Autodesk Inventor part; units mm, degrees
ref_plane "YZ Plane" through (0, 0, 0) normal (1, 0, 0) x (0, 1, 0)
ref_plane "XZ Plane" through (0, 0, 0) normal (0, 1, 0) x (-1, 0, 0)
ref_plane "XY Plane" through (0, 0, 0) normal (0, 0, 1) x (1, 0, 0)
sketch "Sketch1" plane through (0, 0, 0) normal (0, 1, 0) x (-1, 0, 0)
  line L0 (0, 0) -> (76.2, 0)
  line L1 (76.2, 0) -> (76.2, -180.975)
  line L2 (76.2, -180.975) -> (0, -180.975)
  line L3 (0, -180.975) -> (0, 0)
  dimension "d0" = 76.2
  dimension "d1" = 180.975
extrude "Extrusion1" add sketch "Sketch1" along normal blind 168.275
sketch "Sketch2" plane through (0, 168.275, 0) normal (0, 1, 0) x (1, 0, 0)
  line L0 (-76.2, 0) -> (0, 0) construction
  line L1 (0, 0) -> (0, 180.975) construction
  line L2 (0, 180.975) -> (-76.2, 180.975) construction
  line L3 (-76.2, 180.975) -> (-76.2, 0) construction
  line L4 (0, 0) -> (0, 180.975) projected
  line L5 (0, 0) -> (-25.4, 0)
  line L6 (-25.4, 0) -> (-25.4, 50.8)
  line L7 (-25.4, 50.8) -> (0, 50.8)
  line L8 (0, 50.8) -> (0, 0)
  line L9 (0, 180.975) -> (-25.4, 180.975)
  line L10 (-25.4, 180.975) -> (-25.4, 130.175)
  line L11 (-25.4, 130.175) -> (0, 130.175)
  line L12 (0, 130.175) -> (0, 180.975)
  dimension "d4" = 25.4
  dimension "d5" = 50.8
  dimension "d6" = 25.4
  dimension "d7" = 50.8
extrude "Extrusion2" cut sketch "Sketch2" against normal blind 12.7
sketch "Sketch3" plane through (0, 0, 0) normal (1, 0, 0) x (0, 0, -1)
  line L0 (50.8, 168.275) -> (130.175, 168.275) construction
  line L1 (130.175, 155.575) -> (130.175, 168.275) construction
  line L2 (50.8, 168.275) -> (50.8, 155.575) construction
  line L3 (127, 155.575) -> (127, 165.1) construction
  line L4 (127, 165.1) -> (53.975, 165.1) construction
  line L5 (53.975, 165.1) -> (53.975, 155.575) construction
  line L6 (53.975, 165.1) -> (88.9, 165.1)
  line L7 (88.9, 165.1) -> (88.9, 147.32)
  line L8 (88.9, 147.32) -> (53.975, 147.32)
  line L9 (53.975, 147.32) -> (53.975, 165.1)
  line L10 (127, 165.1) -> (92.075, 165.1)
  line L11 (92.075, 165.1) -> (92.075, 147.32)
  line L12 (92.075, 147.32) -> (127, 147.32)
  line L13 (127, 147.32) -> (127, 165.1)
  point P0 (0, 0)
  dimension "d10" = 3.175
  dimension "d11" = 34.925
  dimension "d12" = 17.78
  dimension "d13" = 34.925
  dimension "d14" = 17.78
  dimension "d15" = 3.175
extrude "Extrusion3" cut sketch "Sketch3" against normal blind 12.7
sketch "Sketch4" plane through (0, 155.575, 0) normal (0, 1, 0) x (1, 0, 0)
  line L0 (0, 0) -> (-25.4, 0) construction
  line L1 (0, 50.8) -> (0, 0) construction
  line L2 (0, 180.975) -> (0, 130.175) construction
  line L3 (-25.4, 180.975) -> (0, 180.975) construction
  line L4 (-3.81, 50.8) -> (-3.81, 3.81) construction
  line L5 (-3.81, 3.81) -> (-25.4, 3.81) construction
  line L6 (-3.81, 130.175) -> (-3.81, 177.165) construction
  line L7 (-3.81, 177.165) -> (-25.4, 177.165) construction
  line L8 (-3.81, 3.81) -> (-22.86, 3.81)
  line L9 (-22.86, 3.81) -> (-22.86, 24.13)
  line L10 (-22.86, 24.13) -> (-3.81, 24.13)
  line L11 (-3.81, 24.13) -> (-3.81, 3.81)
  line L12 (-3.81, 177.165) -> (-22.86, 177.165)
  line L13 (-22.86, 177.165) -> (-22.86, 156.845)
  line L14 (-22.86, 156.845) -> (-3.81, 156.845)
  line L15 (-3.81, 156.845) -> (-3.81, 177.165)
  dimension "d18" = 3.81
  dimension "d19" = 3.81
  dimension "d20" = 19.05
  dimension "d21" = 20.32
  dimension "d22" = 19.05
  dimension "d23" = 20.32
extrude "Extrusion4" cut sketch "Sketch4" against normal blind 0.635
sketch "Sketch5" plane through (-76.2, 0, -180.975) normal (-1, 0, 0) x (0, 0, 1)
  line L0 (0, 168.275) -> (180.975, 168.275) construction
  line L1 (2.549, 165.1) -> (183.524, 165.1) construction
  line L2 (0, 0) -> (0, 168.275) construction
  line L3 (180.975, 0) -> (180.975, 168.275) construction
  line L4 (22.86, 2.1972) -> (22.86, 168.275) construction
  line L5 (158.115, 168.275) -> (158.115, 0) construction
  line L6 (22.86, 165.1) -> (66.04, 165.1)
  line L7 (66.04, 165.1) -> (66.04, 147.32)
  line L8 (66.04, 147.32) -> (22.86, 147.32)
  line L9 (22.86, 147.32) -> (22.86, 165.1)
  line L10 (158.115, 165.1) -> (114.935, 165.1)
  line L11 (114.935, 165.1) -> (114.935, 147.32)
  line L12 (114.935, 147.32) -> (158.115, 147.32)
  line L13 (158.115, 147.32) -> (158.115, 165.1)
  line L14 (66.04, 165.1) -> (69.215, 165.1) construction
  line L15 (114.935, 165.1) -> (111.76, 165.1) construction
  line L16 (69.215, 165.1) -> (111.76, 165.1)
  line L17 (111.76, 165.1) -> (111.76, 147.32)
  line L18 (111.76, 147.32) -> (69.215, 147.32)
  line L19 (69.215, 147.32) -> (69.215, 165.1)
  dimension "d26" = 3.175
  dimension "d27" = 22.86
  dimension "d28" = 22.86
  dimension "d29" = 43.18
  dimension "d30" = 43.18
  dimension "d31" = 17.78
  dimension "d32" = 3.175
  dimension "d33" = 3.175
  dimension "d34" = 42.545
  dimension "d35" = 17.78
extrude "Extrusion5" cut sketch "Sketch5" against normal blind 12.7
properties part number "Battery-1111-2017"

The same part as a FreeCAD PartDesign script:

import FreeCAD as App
import Part
import Sketcher

V = App.Vector
Q = App.Units.Quantity

doc = App.newDocument("Part")
body = doc.addObject("PartDesign::Body", "Body")

# Sketch on XZ plane
sketch1 = body.newObject("Sketcher::SketchObject", "Sketch")
sketch1.AttachmentSupport = (doc.getObject("XZ_Plane"), [""])
sketch1.MapMode = "FlatFace"
sketch1.addGeometry(Part.LineSegment(V(-76, 0, 0), V(0, 0, 0)), False)
sketch1.addGeometry(Part.LineSegment(V(0, 0, 0), V(0, -181, 0)), False)
sketch1.addGeometry(Part.LineSegment(V(0, -181, 0), V(-76, -181, 0)), False)
sketch1.addGeometry(Part.LineSegment(V(-76, -181, 0), V(-76, 0, 0)), False)
sketch1.addConstraint(Sketcher.Constraint("Coincident", 0, 2, 1, 1))
sketch1.addConstraint(Sketcher.Constraint("Coincident", 1, 2, 2, 1))
sketch1.addConstraint(Sketcher.Constraint("Coincident", 2, 2, 3, 1))
sketch1.addConstraint(Sketcher.Constraint("Coincident", 3, 2, 0, 1))
sketch1.addConstraint(Sketcher.Constraint("Horizontal", 0))
sketch1.addConstraint(Sketcher.Constraint("Vertical", 1))
sketch1.addConstraint(Sketcher.Constraint("Horizontal", 2))
sketch1.addConstraint(Sketcher.Constraint("Vertical", 3))
sketch1.addConstraint(Sketcher.Constraint("Coincident", 0, 2, -1, 1))
sketch1.addConstraint(Sketcher.Constraint("DistanceX", 0, 1, 0, 2, Q("3 in")))
sketch1.addConstraint(Sketcher.Constraint("DistanceY", 1, 2, 1, 1, Q("7.125 in")))
pad1 = body.newObject("PartDesign::Pad", "Pad")
pad1.Profile = sketch1
pad1.Length = Q("6.625 in")
pad1.Reversed = True

# Sketch on XZ plane
sketch2 = body.newObject("Sketcher::SketchObject", "Sketch001")
sketch2.AttachmentSupport = (doc.getObject("XZ_Plane"), [""])
sketch2.MapMode = "FlatFace"
sketch2.AttachmentOffset = App.Placement(V(0, 0, -6.625 * 25.4), App.Rotation())
sketch2.addGeometry(Part.LineSegment(V(-25, 0, 0), V(0, 0, 0)), False)
sketch2.addGeometry(Part.LineSegment(V(0, 0, 0), V(0, -51, 0)), False)
sketch2.addGeometry(Part.LineSegment(V(0, -51, 0), V(-25, -51, 0)), False)
sketch2.addGeometry(Part.LineSegment(V(-25, -51, 0), V(-25, 0, 0)), False)
sketch2.addGeometry(Part.LineSegment(V(-25, -130, 0), V(0, -130, 0)), False)
sketch2.addGeometry(Part.LineSegment(V(0, -130, 0), V(0, -181, 0)), False)
sketch2.addGeometry(Part.LineSegment(V(0, -181, 0), V(-25, -181, 0)), False)
sketch2.addGeometry(Part.LineSegment(V(-25, -181, 0), V(-25, -130, 0)), False)
sketch2.addConstraint(Sketcher.Constraint("Coincident", 0, 2, 1, 1))
sketch2.addConstraint(Sketcher.Constraint("Coincident", 1, 2, 2, 1))
sketch2.addConstraint(Sketcher.Constraint("Coincident", 2, 2, 3, 1))
sketch2.addConstraint(Sketcher.Constraint("Coincident", 3, 2, 0, 1))
sketch2.addConstraint(Sketcher.Constraint("Coincident", 4, 2, 5, 1))
sketch2.addConstraint(Sketcher.Constraint("Coincident", 5, 2, 6, 1))
sketch2.addConstraint(Sketcher.Constraint("Coincident", 6, 2, 7, 1))
sketch2.addConstraint(Sketcher.Constraint("Coincident", 7, 2, 4, 1))
sketch2.addConstraint(Sketcher.Constraint("Horizontal", 0))
sketch2.addConstraint(Sketcher.Constraint("Vertical", 1))
sketch2.addConstraint(Sketcher.Constraint("Horizontal", 2))
sketch2.addConstraint(Sketcher.Constraint("Vertical", 3))
sketch2.addConstraint(Sketcher.Constraint("Horizontal", 4))
sketch2.addConstraint(Sketcher.Constraint("Vertical", 5))
sketch2.addConstraint(Sketcher.Constraint("Horizontal", 6))
sketch2.addConstraint(Sketcher.Constraint("Vertical", 7))
sketch2.addConstraint(Sketcher.Constraint("Coincident", 0, 2, -1, 1))
sketch2.addConstraint(Sketcher.Constraint("PointOnObject", 4, 2, -2))
sketch2.addConstraint(Sketcher.Constraint("Vertical", 3, 2, 6, 2))
sketch2.addConstraint(Sketcher.Constraint("Equal", 3, 5))
sketch2.addConstraint(Sketcher.Constraint("DistanceX", 0, 1, 0, 2, Q("1 in")))
sketch2.addConstraint(Sketcher.Constraint("DistanceY", 1, 2, 1, 1, Q("2 in")))
sketch2.addConstraint(Sketcher.Constraint("DistanceY", 4, 2, -1, 1, Q("5.125 in")))
pocket1 = body.newObject("PartDesign::Pocket", "Pocket")
pocket1.Profile = sketch2
pocket1.Length = Q("0.5 in")
pocket1.Reversed = True

# Sketch on YZ plane
sketch3 = body.newObject("Sketcher::SketchObject", "Sketch002")
sketch3.AttachmentSupport = (doc.getObject("YZ_Plane"), [""])
sketch3.MapMode = "FlatFace"
sketch3.addGeometry(Part.LineSegment(V(165, -89, 0), V(165, -54, 0)), False)
sketch3.addGeometry(Part.LineSegment(V(165, -54, 0), V(147, -54, 0)), False)
sketch3.addGeometry(Part.LineSegment(V(147, -54, 0), V(147, -89, 0)), False)
sketch3.addGeometry(Part.LineSegment(V(147, -89, 0), V(165, -89, 0)), False)
sketch3.addGeometry(Part.LineSegment(V(147, -127, 0), V(165, -127, 0)), False)
sketch3.addGeometry(Part.LineSegment(V(165, -127, 0), V(165, -92, 0)), False)
sketch3.addGeometry(Part.LineSegment(V(165, -92, 0), V(147, -92, 0)), False)
sketch3.addGeometry(Part.LineSegment(V(147, -92, 0), V(147, -127, 0)), False)
sketch3.addConstraint(Sketcher.Constraint("Coincident", 0, 2, 1, 1))
sketch3.addConstraint(Sketcher.Constraint("Coincident", 1, 2, 2, 1))
sketch3.addConstraint(Sketcher.Constraint("Coincident", 2, 2, 3, 1))
sketch3.addConstraint(Sketcher.Constraint("Coincident", 3, 2, 0, 1))
sketch3.addConstraint(Sketcher.Constraint("Coincident", 4, 2, 5, 1))
sketch3.addConstraint(Sketcher.Constraint("Coincident", 5, 2, 6, 1))
sketch3.addConstraint(Sketcher.Constraint("Coincident", 6, 2, 7, 1))
sketch3.addConstraint(Sketcher.Constraint("Coincident", 7, 2, 4, 1))
sketch3.addConstraint(Sketcher.Constraint("Vertical", 0))
sketch3.addConstraint(Sketcher.Constraint("Horizontal", 1))
sketch3.addConstraint(Sketcher.Constraint("Vertical", 2))
sketch3.addConstraint(Sketcher.Constraint("Horizontal", 3))
sketch3.addConstraint(Sketcher.Constraint("Horizontal", 4))
sketch3.addConstraint(Sketcher.Constraint("Vertical", 5))
sketch3.addConstraint(Sketcher.Constraint("Horizontal", 6))
sketch3.addConstraint(Sketcher.Constraint("Vertical", 7))
sketch3.addConstraint(Sketcher.Constraint("Vertical", 3, 2, 4, 2))
sketch3.addConstraint(Sketcher.Constraint("Vertical", 2, 2, 6, 2))
sketch3.addConstraint(Sketcher.Constraint("Equal", 2, 5))
sketch3.addConstraint(Sketcher.Constraint("DistanceX", 1, 2, 1, 1, Q("0.7 in")))
sketch3.addConstraint(Sketcher.Constraint("DistanceY", 0, 1, 0, 2, Q("1.375 in")))
sketch3.addConstraint(Sketcher.Constraint("DistanceY", 4, 2, -1, 1, Q("5 in")))
sketch3.addConstraint(Sketcher.Constraint("DistanceY", 5, 2, 3, 2, Q("0.125 in")))
sketch3.addConstraint(Sketcher.Constraint("DistanceX", -1, 1, 0, 2, Q("6.5 in")))
pocket2 = body.newObject("PartDesign::Pocket", "Pocket001")
pocket2.Profile = sketch3
pocket2.Length = Q("0.5 in")

# Sketch on XZ plane
sketch4 = body.newObject("Sketcher::SketchObject", "Sketch003")
sketch4.AttachmentSupport = (doc.getObject("XZ_Plane"), [""])
sketch4.MapMode = "FlatFace"
sketch4.AttachmentOffset = App.Placement(V(0, 0, -6.125 * 25.4), App.Rotation())
sketch4.addGeometry(Part.LineSegment(V(-23, -4, 0), V(-4, -4, 0)), False)
sketch4.addGeometry(Part.LineSegment(V(-4, -4, 0), V(-4, -24, 0)), False)
sketch4.addGeometry(Part.LineSegment(V(-4, -24, 0), V(-23, -24, 0)), False)
sketch4.addGeometry(Part.LineSegment(V(-23, -24, 0), V(-23, -4, 0)), False)
sketch4.addGeometry(Part.LineSegment(V(-4, -157, 0), V(-4, -177, 0)), False)
sketch4.addGeometry(Part.LineSegment(V(-4, -177, 0), V(-23, -177, 0)), False)
sketch4.addGeometry(Part.LineSegment(V(-23, -177, 0), V(-23, -157, 0)), False)
sketch4.addGeometry(Part.LineSegment(V(-23, -157, 0), V(-4, -157, 0)), False)
sketch4.addConstraint(Sketcher.Constraint("Coincident", 0, 2, 1, 1))
sketch4.addConstraint(Sketcher.Constraint("Coincident", 1, 2, 2, 1))
sketch4.addConstraint(Sketcher.Constraint("Coincident", 2, 2, 3, 1))
sketch4.addConstraint(Sketcher.Constraint("Coincident", 3, 2, 0, 1))
sketch4.addConstraint(Sketcher.Constraint("Coincident", 4, 2, 5, 1))
sketch4.addConstraint(Sketcher.Constraint("Coincident", 5, 2, 6, 1))
sketch4.addConstraint(Sketcher.Constraint("Coincident", 6, 2, 7, 1))
sketch4.addConstraint(Sketcher.Constraint("Coincident", 7, 2, 4, 1))
sketch4.addConstraint(Sketcher.Constraint("Horizontal", 0))
sketch4.addConstraint(Sketcher.Constraint("Vertical", 1))
sketch4.addConstraint(Sketcher.Constraint("Horizontal", 2))
sketch4.addConstraint(Sketcher.Constraint("Vertical", 3))
sketch4.addConstraint(Sketcher.Constraint("Vertical", 4))
sketch4.addConstraint(Sketcher.Constraint("Horizontal", 5))
sketch4.addConstraint(Sketcher.Constraint("Vertical", 6))
sketch4.addConstraint(Sketcher.Constraint("Horizontal", 7))
sketch4.addConstraint(Sketcher.Constraint("Vertical", 1, 2, 4, 2))
sketch4.addConstraint(Sketcher.Constraint("Vertical", 3, 2, 5, 2))
sketch4.addConstraint(Sketcher.Constraint("Equal", 3, 4))
sketch4.addConstraint(Sketcher.Constraint("DistanceY", 1, 2, 1, 1, Q("0.8 in")))
sketch4.addConstraint(Sketcher.Constraint("DistanceX", 0, 1, 0, 2, Q("0.75 in")))
sketch4.addConstraint(Sketcher.Constraint("DistanceX", 0, 2, -1, 1, Q("0.15 in")))
sketch4.addConstraint(Sketcher.Constraint("DistanceY", 0, 2, -1, 1, Q("0.15 in")))
sketch4.addConstraint(Sketcher.Constraint("DistanceY", 4, 2, -1, 1, Q("6.975 in")))
pocket3 = body.newObject("PartDesign::Pocket", "Pocket002")
pocket3.Profile = sketch4
pocket3.Length = Q("0.025 in")
pocket3.Reversed = True

# Sketch on YZ plane
sketch5 = body.newObject("Sketcher::SketchObject", "Sketch004")
sketch5.AttachmentSupport = (doc.getObject("YZ_Plane"), [""])
sketch5.MapMode = "FlatFace"
sketch5.AttachmentOffset = App.Placement(V(0, 0, -3 * 25.4), App.Rotation())
sketch5.addGeometry(Part.LineSegment(V(165, -115, 0), V(165, -158, 0)), False)
sketch5.addGeometry(Part.LineSegment(V(165, -158, 0), V(147, -158, 0)), False)
sketch5.addGeometry(Part.LineSegment(V(147, -158, 0), V(147, -115, 0)), False)
sketch5.addGeometry(Part.LineSegment(V(147, -115, 0), V(165, -115, 0)), False)
sketch5.addGeometry(Part.LineSegment(V(147, -23, 0), V(165, -23, 0)), False)
sketch5.addGeometry(Part.LineSegment(V(165, -23, 0), V(165, -66, 0)), False)
sketch5.addGeometry(Part.LineSegment(V(165, -66, 0), V(147, -66, 0)), False)
sketch5.addGeometry(Part.LineSegment(V(147, -66, 0), V(147, -23, 0)), False)
sketch5.addGeometry(Part.LineSegment(V(165, -69, 0), V(165, -112, 0)), False)
sketch5.addGeometry(Part.LineSegment(V(165, -112, 0), V(147, -112, 0)), False)
sketch5.addGeometry(Part.LineSegment(V(147, -112, 0), V(147, -69, 0)), False)
sketch5.addGeometry(Part.LineSegment(V(147, -69, 0), V(165, -69, 0)), False)
sketch5.addConstraint(Sketcher.Constraint("Coincident", 0, 2, 1, 1))
sketch5.addConstraint(Sketcher.Constraint("Coincident", 1, 2, 2, 1))
sketch5.addConstraint(Sketcher.Constraint("Coincident", 2, 2, 3, 1))
sketch5.addConstraint(Sketcher.Constraint("Coincident", 3, 2, 0, 1))
sketch5.addConstraint(Sketcher.Constraint("Coincident", 4, 2, 5, 1))
sketch5.addConstraint(Sketcher.Constraint("Coincident", 5, 2, 6, 1))
sketch5.addConstraint(Sketcher.Constraint("Coincident", 6, 2, 7, 1))
sketch5.addConstraint(Sketcher.Constraint("Coincident", 7, 2, 4, 1))
sketch5.addConstraint(Sketcher.Constraint("Coincident", 8, 2, 9, 1))
sketch5.addConstraint(Sketcher.Constraint("Coincident", 9, 2, 10, 1))
sketch5.addConstraint(Sketcher.Constraint("Coincident", 10, 2, 11, 1))
sketch5.addConstraint(Sketcher.Constraint("Coincident", 11, 2, 8, 1))
sketch5.addConstraint(Sketcher.Constraint("Vertical", 0))
sketch5.addConstraint(Sketcher.Constraint("Horizontal", 1))
sketch5.addConstraint(Sketcher.Constraint("Vertical", 2))
sketch5.addConstraint(Sketcher.Constraint("Horizontal", 3))
sketch5.addConstraint(Sketcher.Constraint("Horizontal", 4))
sketch5.addConstraint(Sketcher.Constraint("Vertical", 5))
sketch5.addConstraint(Sketcher.Constraint("Horizontal", 6))
sketch5.addConstraint(Sketcher.Constraint("Vertical", 7))
sketch5.addConstraint(Sketcher.Constraint("Vertical", 8))
sketch5.addConstraint(Sketcher.Constraint("Horizontal", 9))
sketch5.addConstraint(Sketcher.Constraint("Vertical", 10))
sketch5.addConstraint(Sketcher.Constraint("Horizontal", 11))
sketch5.addConstraint(Sketcher.Constraint("Vertical", 3, 2, 4, 2))
sketch5.addConstraint(Sketcher.Constraint("Vertical", 2, 2, 6, 2))
sketch5.addConstraint(Sketcher.Constraint("Vertical", 5, 2, 8, 2))
sketch5.addConstraint(Sketcher.Constraint("Vertical", 7, 2, 9, 2))
sketch5.addConstraint(Sketcher.Constraint("Equal", 2, 5))
sketch5.addConstraint(Sketcher.Constraint("DistanceX", 1, 2, 1, 1, Q("0.7 in")))
sketch5.addConstraint(Sketcher.Constraint("DistanceY", 0, 2, 0, 1, Q("1.7 in")))
sketch5.addConstraint(Sketcher.Constraint("DistanceY", 4, 2, -1, 1, Q("0.9 in")))
sketch5.addConstraint(Sketcher.Constraint("DistanceY", 8, 2, 8, 1, Q("1.675 in")))
sketch5.addConstraint(Sketcher.Constraint("DistanceY", 3, 2, 8, 2, Q("0.125 in")))
sketch5.addConstraint(Sketcher.Constraint("DistanceY", 10, 2, 6, 2, Q("0.125 in")))
sketch5.addConstraint(Sketcher.Constraint("DistanceX", -1, 1, 0, 2, Q("6.5 in")))
pocket4 = body.newObject("PartDesign::Pocket", "Pocket003")
pocket4.Profile = sketch5
pocket4.Length = Q("0.5 in")
pocket4.Reversed = True

doc.recompute()
